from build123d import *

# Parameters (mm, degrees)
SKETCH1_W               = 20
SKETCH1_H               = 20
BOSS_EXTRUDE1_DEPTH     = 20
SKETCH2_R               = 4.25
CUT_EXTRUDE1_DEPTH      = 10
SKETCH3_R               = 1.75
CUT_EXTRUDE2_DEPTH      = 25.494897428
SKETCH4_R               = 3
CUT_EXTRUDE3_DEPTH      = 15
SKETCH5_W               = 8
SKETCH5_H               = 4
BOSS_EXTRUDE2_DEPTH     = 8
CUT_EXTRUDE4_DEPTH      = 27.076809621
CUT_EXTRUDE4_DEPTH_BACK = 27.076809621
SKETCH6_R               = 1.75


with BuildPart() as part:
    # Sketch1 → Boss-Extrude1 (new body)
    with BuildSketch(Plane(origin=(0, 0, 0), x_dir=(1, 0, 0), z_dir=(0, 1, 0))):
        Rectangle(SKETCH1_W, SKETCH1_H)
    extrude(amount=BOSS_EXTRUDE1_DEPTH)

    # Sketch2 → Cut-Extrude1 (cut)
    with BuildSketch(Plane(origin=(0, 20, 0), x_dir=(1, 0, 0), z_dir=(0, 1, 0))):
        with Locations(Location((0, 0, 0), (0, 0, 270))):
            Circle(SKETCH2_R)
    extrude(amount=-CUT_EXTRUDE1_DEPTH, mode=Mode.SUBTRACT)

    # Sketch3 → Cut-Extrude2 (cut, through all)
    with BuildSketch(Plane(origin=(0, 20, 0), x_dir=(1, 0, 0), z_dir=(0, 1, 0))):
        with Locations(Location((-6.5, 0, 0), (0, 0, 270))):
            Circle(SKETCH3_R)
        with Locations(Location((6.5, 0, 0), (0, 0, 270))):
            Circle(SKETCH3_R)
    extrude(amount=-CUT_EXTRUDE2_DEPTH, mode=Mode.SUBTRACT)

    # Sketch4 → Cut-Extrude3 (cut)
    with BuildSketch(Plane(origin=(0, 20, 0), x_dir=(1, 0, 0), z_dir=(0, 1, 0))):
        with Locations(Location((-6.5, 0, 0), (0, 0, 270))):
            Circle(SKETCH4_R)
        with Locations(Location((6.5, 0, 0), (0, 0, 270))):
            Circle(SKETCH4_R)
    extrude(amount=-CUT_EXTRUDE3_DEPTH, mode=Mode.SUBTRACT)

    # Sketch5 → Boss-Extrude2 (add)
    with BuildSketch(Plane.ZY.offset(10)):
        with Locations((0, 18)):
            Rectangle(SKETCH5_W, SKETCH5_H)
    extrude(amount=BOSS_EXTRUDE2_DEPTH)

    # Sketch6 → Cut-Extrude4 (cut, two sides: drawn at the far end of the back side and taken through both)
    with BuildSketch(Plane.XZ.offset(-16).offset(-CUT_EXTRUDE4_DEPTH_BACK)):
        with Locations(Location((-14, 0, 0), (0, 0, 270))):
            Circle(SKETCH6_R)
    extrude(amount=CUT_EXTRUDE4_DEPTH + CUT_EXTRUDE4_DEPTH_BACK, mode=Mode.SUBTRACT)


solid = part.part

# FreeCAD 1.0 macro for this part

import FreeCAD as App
import Part
import Sketcher
from FreeCAD import Vector


def add_polygon(sketch, points):
    """Adds a closed chain of lines whose ends are joined by coincident constraints."""
    first, n = sketch.GeometryCount, len(points)
    for a, b in zip(points, points[1:] + points[:1]):
        sketch.addGeometry(Part.LineSegment(App.Vector(*a, 0), App.Vector(*b, 0)), False)
    for i in range(n):
        sketch.addConstraint(Sketcher.Constraint("Coincident", first + i, 2, first + (i + 1) % n, 1))

doc = App.newDocument("Part")
body = doc.addObject("PartDesign::Body", "Body")

# Sketch on XZ plane
sketch1 = body.newObject("Sketcher::SketchObject", "Sketch")
sketch1.AttachmentSupport = (doc.getObject("XZ_Plane"), [""])
sketch1.MapMode = "FlatFace"
add_polygon(sketch1, [(-10, -10), (-10, 10), (10, 10), (10, -10)])  # lines 0-3
sketch1.addConstraint([
    Sketcher.Constraint("Vertical", 0),
    Sketcher.Constraint("Horizontal", 1),
    Sketcher.Constraint("Vertical", 2),
    Sketcher.Constraint("Horizontal", 3),
    Sketcher.Constraint("Symmetric", 0, 2, 2, 2, -1, 1),
    Sketcher.Constraint("Equal", 3, 0),
    Sketcher.Constraint("DistanceX", 1, 1, 1, 2, 20.0),
])
pad1 = body.newObject("PartDesign::Pad", "Pad")
pad1.Profile = sketch1
pad1.Length = 20
pad1.Reversed = True

# Sketch on XZ plane
sketch2 = body.newObject("Sketcher::SketchObject", "Sketch001")
sketch2.AttachmentSupport = (doc.getObject("XZ_Plane"), [""])
sketch2.MapMode = "FlatFace"
sketch2.AttachmentOffset = App.Placement(Vector(0, 0, -20), App.Rotation())
sketch2.addGeometry(Part.Circle(Vector(0, 0, 0), Vector(0, 0, 1), 4.25), False)
sketch2.addConstraint([
    Sketcher.Constraint("Coincident", 0, 3, -1, 1),
    Sketcher.Constraint("Diameter", 0, 8.5),
])
pocket1 = body.newObject("PartDesign::Pocket", "Pocket")
pocket1.Profile = sketch2
pocket1.Length = 10
pocket1.Reversed = True

# Sketch on XZ plane
sketch3 = body.newObject("Sketcher::SketchObject", "Sketch002")
sketch3.AttachmentSupport = (doc.getObject("XZ_Plane"), [""])
sketch3.MapMode = "FlatFace"
sketch3.AttachmentOffset = App.Placement(Vector(0, 0, -20), App.Rotation())
sketch3.addGeometry([
    Part.Circle(Vector(-6.5, 0, 0), Vector(0, 0, 1), 1.75),
    Part.Circle(Vector(6.5, 0, 0), Vector(0, 0, 1), 1.75),
], False)
sketch3.addConstraint([
    Sketcher.Constraint("Equal", 0, 1),
    Sketcher.Constraint("Symmetric", 0, 3, 1, 3, -1, 1),
    Sketcher.Constraint("PointOnObject", 0, 3, -1),
    Sketcher.Constraint("Diameter", 0, 3.5),
    Sketcher.Constraint("DistanceX", 0, 3, 1, 3, 13.0),
])
pocket2 = body.newObject("PartDesign::Pocket", "Pocket001")
pocket2.Profile = sketch3
pocket2.Type = "ThroughAll"
pocket2.Reversed = True

# Sketch on XZ plane
sketch4 = body.newObject("Sketcher::SketchObject", "Sketch003")
sketch4.AttachmentSupport = (doc.getObject("XZ_Plane"), [""])
sketch4.MapMode = "FlatFace"
sketch4.AttachmentOffset = App.Placement(Vector(0, 0, -20), App.Rotation())
sketch4.addGeometry([
    Part.Circle(Vector(-6.5, 0, 0), Vector(0, 0, 1), 3),
    Part.Circle(Vector(6.5, 0, 0), Vector(0, 0, 1), 3),
], False)
sketch4.addConstraint([
    Sketcher.Constraint("Equal", 0, 1),
    Sketcher.Constraint("Symmetric", 0, 3, 1, 3, -1, 1),
    Sketcher.Constraint("PointOnObject", 0, 3, -1),
    Sketcher.Constraint("Diameter", 0, 6.0),
    Sketcher.Constraint("DistanceX", 0, 3, 1, 3, 13.0),
])
pocket3 = body.newObject("PartDesign::Pocket", "Pocket002")
pocket3.Profile = sketch4
pocket3.Length = 15
pocket3.Reversed = True

# Sketch on YZ plane
sketch5 = body.newObject("Sketcher::SketchObject", "Sketch004")
sketch5.AttachmentSupport = (doc.getObject("YZ_Plane"), [""])
sketch5.MapMode = "FlatFace"
sketch5.AttachmentOffset = App.Placement(Vector(0, 0, -10), App.Rotation())
add_polygon(sketch5, [(20, -4), (16, -4), (16, 4), (20, 4)])  # lines 0-3
sketch5.addConstraint([
    Sketcher.Constraint("Horizontal", 0),
    Sketcher.Constraint("Vertical", 1),
    Sketcher.Constraint("Horizontal", 2),
    Sketcher.Constraint("Vertical", 3),
    Sketcher.Constraint("DistanceX", 0, 2, 0, 1, 4.0),
    Sketcher.Constraint("DistanceY", 1, 1, 1, 2, 8.0),
    Sketcher.Constraint("DistanceX", -1, 1, 0, 2, 16.0),
    Sketcher.Constraint("DistanceY", 0, 2, -1, 1, 4.0),
])
pad2 = body.newObject("PartDesign::Pad", "Pad001")
pad2.Profile = sketch5
pad2.Length = 8
pad2.Reversed = True

# Sketch on XZ plane
sketch6 = body.newObject("Sketcher::SketchObject", "Sketch005")
sketch6.AttachmentSupport = (doc.getObject("XZ_Plane"), [""])
sketch6.MapMode = "FlatFace"
sketch6.AttachmentOffset = App.Placement(Vector(0, 0, -16), App.Rotation())
sketch6.addGeometry(Part.Circle(Vector(-14, 0, 0), Vector(0, 0, 1), 1.75), False)
sketch6.addConstraint([
    Sketcher.Constraint("PointOnObject", 0, 3, -1),
    Sketcher.Constraint("Diameter", 0, 3.5),
    Sketcher.Constraint("DistanceX", 0, 3, -1, 1, 14.0),
])
pocket4 = body.newObject("PartDesign::Pocket", "Pocket003")
pocket4.Profile = sketch6
pocket4.Type = "ThroughAll"
pocket4.Midplane = True

doc.recompute()
